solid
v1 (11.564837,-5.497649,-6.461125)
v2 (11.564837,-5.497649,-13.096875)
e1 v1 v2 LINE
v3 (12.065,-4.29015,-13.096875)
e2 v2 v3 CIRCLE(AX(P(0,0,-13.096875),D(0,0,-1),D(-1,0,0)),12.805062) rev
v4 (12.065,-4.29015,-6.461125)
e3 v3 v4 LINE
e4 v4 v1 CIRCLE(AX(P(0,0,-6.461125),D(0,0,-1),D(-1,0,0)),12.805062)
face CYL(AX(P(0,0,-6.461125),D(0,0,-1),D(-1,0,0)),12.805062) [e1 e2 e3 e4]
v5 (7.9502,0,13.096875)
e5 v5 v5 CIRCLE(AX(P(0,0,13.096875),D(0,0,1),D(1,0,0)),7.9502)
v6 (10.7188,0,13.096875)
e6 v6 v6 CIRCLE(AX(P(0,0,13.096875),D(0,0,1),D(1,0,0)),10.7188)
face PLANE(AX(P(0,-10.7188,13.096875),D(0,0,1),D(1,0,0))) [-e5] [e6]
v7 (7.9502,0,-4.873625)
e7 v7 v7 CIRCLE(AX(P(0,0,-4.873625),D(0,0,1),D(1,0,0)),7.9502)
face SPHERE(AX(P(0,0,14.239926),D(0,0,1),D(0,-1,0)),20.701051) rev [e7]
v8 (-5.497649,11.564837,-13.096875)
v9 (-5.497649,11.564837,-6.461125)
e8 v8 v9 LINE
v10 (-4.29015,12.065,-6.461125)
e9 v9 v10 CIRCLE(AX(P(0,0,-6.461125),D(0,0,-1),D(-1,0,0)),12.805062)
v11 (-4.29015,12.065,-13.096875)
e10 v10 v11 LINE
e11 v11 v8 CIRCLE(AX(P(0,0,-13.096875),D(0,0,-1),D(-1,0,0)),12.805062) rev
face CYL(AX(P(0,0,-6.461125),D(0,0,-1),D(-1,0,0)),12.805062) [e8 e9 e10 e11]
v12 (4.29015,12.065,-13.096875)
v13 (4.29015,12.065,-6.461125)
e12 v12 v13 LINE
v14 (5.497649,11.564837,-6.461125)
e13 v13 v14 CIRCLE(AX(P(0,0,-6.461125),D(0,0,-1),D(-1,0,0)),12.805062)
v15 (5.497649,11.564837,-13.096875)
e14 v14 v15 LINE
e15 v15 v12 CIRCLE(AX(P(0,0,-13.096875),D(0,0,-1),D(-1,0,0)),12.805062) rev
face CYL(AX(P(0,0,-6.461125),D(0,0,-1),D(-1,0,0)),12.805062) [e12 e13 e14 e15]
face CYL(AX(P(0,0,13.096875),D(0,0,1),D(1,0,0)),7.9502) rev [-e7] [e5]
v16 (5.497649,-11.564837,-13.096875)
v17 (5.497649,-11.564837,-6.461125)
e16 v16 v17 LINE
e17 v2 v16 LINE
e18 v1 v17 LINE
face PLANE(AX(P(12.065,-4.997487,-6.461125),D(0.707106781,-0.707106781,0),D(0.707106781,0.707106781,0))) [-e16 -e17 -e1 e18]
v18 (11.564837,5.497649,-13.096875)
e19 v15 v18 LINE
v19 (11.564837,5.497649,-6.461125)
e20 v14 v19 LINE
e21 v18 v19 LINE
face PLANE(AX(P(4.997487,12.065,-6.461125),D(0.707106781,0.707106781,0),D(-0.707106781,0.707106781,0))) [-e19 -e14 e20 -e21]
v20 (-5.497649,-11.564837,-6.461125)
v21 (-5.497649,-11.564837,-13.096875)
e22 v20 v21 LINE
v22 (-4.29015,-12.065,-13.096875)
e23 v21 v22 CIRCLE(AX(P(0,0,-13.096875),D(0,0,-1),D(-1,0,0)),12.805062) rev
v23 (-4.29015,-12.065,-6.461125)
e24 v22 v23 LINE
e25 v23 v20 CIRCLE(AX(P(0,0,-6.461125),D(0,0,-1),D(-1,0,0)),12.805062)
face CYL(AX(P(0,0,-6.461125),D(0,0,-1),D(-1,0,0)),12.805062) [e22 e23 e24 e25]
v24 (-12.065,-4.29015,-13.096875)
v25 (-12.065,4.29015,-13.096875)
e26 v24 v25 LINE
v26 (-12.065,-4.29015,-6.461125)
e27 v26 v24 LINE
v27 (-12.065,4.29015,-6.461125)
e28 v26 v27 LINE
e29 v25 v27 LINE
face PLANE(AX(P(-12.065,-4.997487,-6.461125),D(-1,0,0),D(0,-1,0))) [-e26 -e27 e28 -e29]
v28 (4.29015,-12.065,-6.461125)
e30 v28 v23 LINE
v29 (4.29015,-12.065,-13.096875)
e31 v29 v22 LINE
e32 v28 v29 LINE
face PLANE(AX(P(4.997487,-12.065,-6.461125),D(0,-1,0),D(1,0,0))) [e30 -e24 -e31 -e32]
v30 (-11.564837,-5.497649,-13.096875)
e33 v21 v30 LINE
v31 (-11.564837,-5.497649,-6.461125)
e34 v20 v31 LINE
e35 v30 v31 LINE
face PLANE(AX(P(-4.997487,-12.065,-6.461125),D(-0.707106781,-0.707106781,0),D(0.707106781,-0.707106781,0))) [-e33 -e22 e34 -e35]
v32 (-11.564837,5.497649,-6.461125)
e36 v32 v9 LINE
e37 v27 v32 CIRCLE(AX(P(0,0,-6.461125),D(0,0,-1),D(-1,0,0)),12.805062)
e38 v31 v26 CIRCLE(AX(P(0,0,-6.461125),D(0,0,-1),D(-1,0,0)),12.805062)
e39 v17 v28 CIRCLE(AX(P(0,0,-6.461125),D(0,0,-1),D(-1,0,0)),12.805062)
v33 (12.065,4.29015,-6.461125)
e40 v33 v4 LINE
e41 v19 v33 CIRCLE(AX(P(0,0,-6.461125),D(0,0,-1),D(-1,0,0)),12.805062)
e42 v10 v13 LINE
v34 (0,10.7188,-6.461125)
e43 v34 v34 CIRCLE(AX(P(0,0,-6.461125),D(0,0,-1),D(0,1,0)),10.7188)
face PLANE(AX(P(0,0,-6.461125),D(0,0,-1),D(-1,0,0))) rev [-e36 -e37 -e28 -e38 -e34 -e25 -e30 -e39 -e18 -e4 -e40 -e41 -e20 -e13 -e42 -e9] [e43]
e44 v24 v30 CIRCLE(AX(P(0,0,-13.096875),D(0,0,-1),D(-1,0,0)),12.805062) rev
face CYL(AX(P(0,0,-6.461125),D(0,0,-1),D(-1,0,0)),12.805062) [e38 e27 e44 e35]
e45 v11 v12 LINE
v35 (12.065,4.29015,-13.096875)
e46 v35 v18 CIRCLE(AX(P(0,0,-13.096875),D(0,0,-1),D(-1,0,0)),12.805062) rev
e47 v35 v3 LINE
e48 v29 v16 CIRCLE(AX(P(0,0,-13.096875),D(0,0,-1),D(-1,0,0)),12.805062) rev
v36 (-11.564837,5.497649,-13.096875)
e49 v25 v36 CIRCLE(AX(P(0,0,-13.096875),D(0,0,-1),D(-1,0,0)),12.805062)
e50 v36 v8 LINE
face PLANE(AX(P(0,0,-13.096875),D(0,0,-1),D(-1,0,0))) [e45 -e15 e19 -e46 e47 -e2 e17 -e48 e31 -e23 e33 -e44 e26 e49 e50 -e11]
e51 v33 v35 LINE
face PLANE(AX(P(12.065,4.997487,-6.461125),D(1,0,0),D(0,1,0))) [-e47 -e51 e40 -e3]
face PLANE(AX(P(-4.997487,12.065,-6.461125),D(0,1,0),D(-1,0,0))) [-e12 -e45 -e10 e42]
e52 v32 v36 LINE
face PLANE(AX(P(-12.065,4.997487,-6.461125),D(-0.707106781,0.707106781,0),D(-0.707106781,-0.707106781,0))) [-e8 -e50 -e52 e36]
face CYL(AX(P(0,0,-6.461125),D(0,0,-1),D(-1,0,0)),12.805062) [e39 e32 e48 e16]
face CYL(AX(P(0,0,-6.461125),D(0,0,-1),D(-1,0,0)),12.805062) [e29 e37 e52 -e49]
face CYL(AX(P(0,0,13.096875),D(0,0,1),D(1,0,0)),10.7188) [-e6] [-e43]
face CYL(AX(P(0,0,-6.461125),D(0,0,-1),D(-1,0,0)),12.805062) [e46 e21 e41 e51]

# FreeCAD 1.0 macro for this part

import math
import FreeCAD as App
import Part
import Sketcher
from FreeCAD import Vector
Q = App.Units.Quantity


def add_polygon(sketch, points):
    """Adds a closed chain of lines whose ends are joined by coincident constraints."""
    first, n = sketch.GeometryCount, len(points)
    for a, b in zip(points, points[1:] + points[:1]):
        sketch.addGeometry(Part.LineSegment(App.Vector(*a, 0), App.Vector(*b, 0)), False)
    for i in range(n):
        sketch.addConstraint(Sketcher.Constraint("Coincident", first + i, 2, first + (i + 1) % n, 1))

doc = App.newDocument("Part")
body = doc.addObject("PartDesign::Body", "Body")

sketch1 = body.newObject("Sketcher::SketchObject", "Sketch")
sketch1.AttachmentSupport = (doc.getObject("YZ_Plane"), [""])
sketch1.MapMode = "FlatFace"
sketch1.addGeometry(Part.LineSegment(Vector(0, -13.1, 0), Vector(0, -6.5, 0)), False)
sketch1.addGeometry(Part.ArcOfCircle(Part.Circle(Vector(0, 14.2, 0), Vector(0, 0, 1), 20.7), math.radians(-113), math.radians(-90)), False)
sketch1.addGeometry(Part.LineSegment(Vector(-8, -4.9, 0), Vector(-8, 13.1, 0)), False)
sketch1.addGeometry(Part.LineSegment(Vector(-8, 13.1, 0), Vector(-10.7, 13.1, 0)), False)
sketch1.addGeometry(Part.LineSegment(Vector(-10.7, 13.1, 0), Vector(-10.7, -13.1, 0)), False)
sketch1.addGeometry(Part.LineSegment(Vector(-10.7, -13.1, 0), Vector(0, -13.1, 0)), False)
sketch1.addConstraint(Sketcher.Constraint("Coincident", 0, 2, 1, 2))
sketch1.addConstraint(Sketcher.Constraint("Coincident", 1, 1, 2, 1))
sketch1.addConstraint(Sketcher.Constraint("Coincident", 2, 2, 3, 1))
sketch1.addConstraint(Sketcher.Constraint("Coincident", 3, 2, 4, 1))
sketch1.addConstraint(Sketcher.Constraint("Coincident", 4, 2, 5, 1))
sketch1.addConstraint(Sketcher.Constraint("Coincident", 5, 2, 0, 1))
sketch1.addConstraint(Sketcher.Constraint("Vertical", 0))
sketch1.addConstraint(Sketcher.Constraint("Vertical", 2))
sketch1.addConstraint(Sketcher.Constraint("Horizontal", 3))
sketch1.addConstraint(Sketcher.Constraint("Vertical", 4))
sketch1.addConstraint(Sketcher.Constraint("Horizontal", 5))
sketch1.addConstraint(Sketcher.Constraint("PointOnObject", 1, 3, -2))
sketch1.addConstraint(Sketcher.Constraint("PointOnObject", 0, 2, -2))
sketch1.addConstraint(Sketcher.Constraint("DistanceX", 3, 2, 3, 1, Q("0.109 in")))
sketch1.addConstraint(Sketcher.Constraint("DistanceX", 5, 1, 5, 2, Q("0.422 in")))
sketch1.addConstraint(Sketcher.Constraint("DistanceY", 4, 2, 4, 1, Q("1.03125 in")))
sketch1.addConstraint(Sketcher.Constraint("DistanceY", 0, 2, 2, 2, Q("0.77 in")))
sketch1.addConstraint(Sketcher.Constraint("DistanceY", 2, 1, 2, 2, Q("0.7075 in")))
sketch1.addConstraint(Sketcher.Constraint("DistanceY", -1, 1, 2, 2, Q("0.515625 in")))
revolution = body.newObject("PartDesign::Revolution", "Revolution")
revolution.Profile = sketch1
revolution.ReferenceAxis = (sketch1, ["V_Axis"])
revolution.Angle = 360

sketch2 = body.newObject("Sketcher::SketchObject", "Sketch001")
sketch2.AttachmentSupport = (doc.getObject("XY_Plane"), [""])
sketch2.MapMode = "FlatFace"
sketch2.AttachmentOffset = App.Placement(Vector(0, 0, -0.515625 * 25.4), App.Rotation())
add_polygon(sketch2, [(-5, 12), (5, 12), (12, 5), (12, -5), (5, -12), (-5, -12), (-12, -5), (-12, 5)])
sketch2.addGeometry(Part.Circle(Vector(0, 0, 0), Vector(0, 0, 1), 11), False)
sketch2.addConstraint(Sketcher.Constraint("Horizontal", 0))
sketch2.addConstraint(Sketcher.Constraint("Vertical", 2))
sketch2.addConstraint(Sketcher.Constraint("Horizontal", 4))
sketch2.addConstraint(Sketcher.Constraint("Vertical", 6))
sketch2.addConstraint(Sketcher.Constraint("Coincident", 8, 3, -1, 1))
sketch2.addConstraint(Sketcher.Constraint("Symmetric", 0, 2, 4, 2, -1, 1))
sketch2.addConstraint(Sketcher.Constraint("Symmetric", 1, 2, 5, 2, -1, 1))
sketch2.addConstraint(Sketcher.Constraint("Perpendicular", 1, 3))
sketch2.addConstraint(Sketcher.Constraint("Perpendicular", 5, 7))
sketch2.addConstraint(Sketcher.Constraint("Horizontal", 2, 2, 5, 2))
sketch2.addConstraint(Sketcher.Constraint("Horizontal", 1, 2, 6, 2))
sketch2.addConstraint(Sketcher.Constraint("Vertical", 0, 2, 3, 2))
sketch2.addConstraint(Sketcher.Constraint("Equal", 4, 2))
sketch2.addConstraint(Sketcher.Constraint("Diameter", 8, Q("0.844 in")))
sketch2.addConstraint(Sketcher.Constraint("DistanceY", 3, 2, 0, 2, Q("0.95 in")))
sketch2.addConstraint(Sketcher.Constraint("DistanceX", 0, 1, 0, 2, Q("9.994973 mm")))
pad1 = body.newObject("PartDesign::Pad", "Pad")
pad1.Profile = sketch2
pad1.Length = 6.63575

sketch3 = body.newObject("Sketcher::SketchObject", "Sketch002")
sketch3.Placement = App.Placement(Vector(0, 0, 0), App.Rotation(Vector(0, 0, -1), Vector(0.382683432, 0.923879533, 0), Vector(0.923879533, -0.382683432, 0), "ZXY"))
add_polygon(sketch3, [(6.46, 13.06), (6.46, 12.81), (13.1, 12.81), (13.1, 13.06)])
sketch3.addConstraint(Sketcher.Constraint("Vertical", 0))
sketch3.addConstraint(Sketcher.Constraint("Horizontal", 1))
sketch3.addConstraint(Sketcher.Constraint("Vertical", 2))
sketch3.addConstraint(Sketcher.Constraint("Horizontal", 3))
sketch3.addConstraint(Sketcher.Constraint("DistanceY", 0, 2, 0, 1, Q("0.01 in")))
sketch3.addConstraint(Sketcher.Constraint("DistanceX", -1, 1, 1, 2, Q("0.515625 in")))
sketch3.addConstraint(Sketcher.Constraint("DistanceX", 1, 1, 1, 2, Q("6.63575 mm")))
sketch3.addConstraint(Sketcher.Constraint("DistanceY", -1, 1, 0, 2, Q("12.805062 mm")))
groove = body.newObject("PartDesign::Groove", "Groove")
groove.Profile = sketch3
groove.ReferenceAxis = (sketch3, ["H_Axis"])
groove.Angle = 360

doc.recompute()
